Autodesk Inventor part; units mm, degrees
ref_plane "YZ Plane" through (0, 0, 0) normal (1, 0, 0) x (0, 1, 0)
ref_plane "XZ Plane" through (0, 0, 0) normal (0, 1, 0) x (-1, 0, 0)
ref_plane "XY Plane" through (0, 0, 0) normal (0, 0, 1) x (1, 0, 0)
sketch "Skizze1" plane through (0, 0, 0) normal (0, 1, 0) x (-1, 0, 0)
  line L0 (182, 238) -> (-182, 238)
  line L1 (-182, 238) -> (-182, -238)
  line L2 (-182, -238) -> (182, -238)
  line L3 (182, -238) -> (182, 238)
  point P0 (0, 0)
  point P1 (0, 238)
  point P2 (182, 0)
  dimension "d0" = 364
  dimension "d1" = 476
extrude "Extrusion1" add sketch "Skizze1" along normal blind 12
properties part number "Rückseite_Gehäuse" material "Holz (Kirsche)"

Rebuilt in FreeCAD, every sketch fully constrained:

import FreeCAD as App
import Part
import Sketcher
from FreeCAD import Vector
Q = App.Units.Quantity


def add_polygon(sketch, points):
    """Adds a closed chain of lines whose ends are joined by coincident constraints."""
    first, n = sketch.GeometryCount, len(points)
    for a, b in zip(points, points[1:] + points[:1]):
        sketch.addGeometry(Part.LineSegment(App.Vector(*a, 0), App.Vector(*b, 0)), False)
    for i in range(n):
        sketch.addConstraint(Sketcher.Constraint("Coincident", first + i, 2, first + (i + 1) % n, 1))

doc = App.newDocument("Part")
params = doc.addObject("Spreadsheet::Sheet", "Params")
for row, (alias, value) in enumerate([
    ("sketch1_width", "364 mm"),
    ("sketch1_height", "476 mm"),
    ("pad1_length", "12 mm"),
], start=1):
    params.set(f"A{row}", alias)
    params.set(f"B{row}", "=" + value)
    params.setAlias(f"B{row}", alias)

body = doc.addObject("PartDesign::Body", "Body")

sketch1 = doc.addObject("Sketcher::SketchObject", "Sketch")
body.addObject(sketch1)
sketch1.AttachmentSupport = (doc.XZ_Plane, [""])
sketch1.MapMode = "FlatFace"
add_polygon(sketch1, [(-182, -238), (-182, 238), (182, 238), (182, -238)])
sketch1.addConstraint([
    Sketcher.Constraint("Vertical", 0),
    Sketcher.Constraint("Horizontal", 1),
    Sketcher.Constraint("Vertical", 2),
    Sketcher.Constraint("Horizontal", 3),
    Sketcher.Constraint("Symmetric", 0, 2, 2, 2, -1, 1),
    Sketcher.Constraint("DistanceX", 1, 1, 1, 2, Q("364 mm")),
    Sketcher.Constraint("DistanceY", 0, 1, 0, 2, Q("476 mm")),
])
sketch1.setExpression("Constraints[9]", "Params.sketch1_width")
sketch1.setExpression("Constraints[10]", "Params.sketch1_height")
pad1 = doc.addObject("PartDesign::Pad", "Pad")
body.addObject(pad1)
pad1.Profile = sketch1
pad1.setExpression("Length", "Params.pad1_length")
pad1.Reversed = True

doc.recompute()
